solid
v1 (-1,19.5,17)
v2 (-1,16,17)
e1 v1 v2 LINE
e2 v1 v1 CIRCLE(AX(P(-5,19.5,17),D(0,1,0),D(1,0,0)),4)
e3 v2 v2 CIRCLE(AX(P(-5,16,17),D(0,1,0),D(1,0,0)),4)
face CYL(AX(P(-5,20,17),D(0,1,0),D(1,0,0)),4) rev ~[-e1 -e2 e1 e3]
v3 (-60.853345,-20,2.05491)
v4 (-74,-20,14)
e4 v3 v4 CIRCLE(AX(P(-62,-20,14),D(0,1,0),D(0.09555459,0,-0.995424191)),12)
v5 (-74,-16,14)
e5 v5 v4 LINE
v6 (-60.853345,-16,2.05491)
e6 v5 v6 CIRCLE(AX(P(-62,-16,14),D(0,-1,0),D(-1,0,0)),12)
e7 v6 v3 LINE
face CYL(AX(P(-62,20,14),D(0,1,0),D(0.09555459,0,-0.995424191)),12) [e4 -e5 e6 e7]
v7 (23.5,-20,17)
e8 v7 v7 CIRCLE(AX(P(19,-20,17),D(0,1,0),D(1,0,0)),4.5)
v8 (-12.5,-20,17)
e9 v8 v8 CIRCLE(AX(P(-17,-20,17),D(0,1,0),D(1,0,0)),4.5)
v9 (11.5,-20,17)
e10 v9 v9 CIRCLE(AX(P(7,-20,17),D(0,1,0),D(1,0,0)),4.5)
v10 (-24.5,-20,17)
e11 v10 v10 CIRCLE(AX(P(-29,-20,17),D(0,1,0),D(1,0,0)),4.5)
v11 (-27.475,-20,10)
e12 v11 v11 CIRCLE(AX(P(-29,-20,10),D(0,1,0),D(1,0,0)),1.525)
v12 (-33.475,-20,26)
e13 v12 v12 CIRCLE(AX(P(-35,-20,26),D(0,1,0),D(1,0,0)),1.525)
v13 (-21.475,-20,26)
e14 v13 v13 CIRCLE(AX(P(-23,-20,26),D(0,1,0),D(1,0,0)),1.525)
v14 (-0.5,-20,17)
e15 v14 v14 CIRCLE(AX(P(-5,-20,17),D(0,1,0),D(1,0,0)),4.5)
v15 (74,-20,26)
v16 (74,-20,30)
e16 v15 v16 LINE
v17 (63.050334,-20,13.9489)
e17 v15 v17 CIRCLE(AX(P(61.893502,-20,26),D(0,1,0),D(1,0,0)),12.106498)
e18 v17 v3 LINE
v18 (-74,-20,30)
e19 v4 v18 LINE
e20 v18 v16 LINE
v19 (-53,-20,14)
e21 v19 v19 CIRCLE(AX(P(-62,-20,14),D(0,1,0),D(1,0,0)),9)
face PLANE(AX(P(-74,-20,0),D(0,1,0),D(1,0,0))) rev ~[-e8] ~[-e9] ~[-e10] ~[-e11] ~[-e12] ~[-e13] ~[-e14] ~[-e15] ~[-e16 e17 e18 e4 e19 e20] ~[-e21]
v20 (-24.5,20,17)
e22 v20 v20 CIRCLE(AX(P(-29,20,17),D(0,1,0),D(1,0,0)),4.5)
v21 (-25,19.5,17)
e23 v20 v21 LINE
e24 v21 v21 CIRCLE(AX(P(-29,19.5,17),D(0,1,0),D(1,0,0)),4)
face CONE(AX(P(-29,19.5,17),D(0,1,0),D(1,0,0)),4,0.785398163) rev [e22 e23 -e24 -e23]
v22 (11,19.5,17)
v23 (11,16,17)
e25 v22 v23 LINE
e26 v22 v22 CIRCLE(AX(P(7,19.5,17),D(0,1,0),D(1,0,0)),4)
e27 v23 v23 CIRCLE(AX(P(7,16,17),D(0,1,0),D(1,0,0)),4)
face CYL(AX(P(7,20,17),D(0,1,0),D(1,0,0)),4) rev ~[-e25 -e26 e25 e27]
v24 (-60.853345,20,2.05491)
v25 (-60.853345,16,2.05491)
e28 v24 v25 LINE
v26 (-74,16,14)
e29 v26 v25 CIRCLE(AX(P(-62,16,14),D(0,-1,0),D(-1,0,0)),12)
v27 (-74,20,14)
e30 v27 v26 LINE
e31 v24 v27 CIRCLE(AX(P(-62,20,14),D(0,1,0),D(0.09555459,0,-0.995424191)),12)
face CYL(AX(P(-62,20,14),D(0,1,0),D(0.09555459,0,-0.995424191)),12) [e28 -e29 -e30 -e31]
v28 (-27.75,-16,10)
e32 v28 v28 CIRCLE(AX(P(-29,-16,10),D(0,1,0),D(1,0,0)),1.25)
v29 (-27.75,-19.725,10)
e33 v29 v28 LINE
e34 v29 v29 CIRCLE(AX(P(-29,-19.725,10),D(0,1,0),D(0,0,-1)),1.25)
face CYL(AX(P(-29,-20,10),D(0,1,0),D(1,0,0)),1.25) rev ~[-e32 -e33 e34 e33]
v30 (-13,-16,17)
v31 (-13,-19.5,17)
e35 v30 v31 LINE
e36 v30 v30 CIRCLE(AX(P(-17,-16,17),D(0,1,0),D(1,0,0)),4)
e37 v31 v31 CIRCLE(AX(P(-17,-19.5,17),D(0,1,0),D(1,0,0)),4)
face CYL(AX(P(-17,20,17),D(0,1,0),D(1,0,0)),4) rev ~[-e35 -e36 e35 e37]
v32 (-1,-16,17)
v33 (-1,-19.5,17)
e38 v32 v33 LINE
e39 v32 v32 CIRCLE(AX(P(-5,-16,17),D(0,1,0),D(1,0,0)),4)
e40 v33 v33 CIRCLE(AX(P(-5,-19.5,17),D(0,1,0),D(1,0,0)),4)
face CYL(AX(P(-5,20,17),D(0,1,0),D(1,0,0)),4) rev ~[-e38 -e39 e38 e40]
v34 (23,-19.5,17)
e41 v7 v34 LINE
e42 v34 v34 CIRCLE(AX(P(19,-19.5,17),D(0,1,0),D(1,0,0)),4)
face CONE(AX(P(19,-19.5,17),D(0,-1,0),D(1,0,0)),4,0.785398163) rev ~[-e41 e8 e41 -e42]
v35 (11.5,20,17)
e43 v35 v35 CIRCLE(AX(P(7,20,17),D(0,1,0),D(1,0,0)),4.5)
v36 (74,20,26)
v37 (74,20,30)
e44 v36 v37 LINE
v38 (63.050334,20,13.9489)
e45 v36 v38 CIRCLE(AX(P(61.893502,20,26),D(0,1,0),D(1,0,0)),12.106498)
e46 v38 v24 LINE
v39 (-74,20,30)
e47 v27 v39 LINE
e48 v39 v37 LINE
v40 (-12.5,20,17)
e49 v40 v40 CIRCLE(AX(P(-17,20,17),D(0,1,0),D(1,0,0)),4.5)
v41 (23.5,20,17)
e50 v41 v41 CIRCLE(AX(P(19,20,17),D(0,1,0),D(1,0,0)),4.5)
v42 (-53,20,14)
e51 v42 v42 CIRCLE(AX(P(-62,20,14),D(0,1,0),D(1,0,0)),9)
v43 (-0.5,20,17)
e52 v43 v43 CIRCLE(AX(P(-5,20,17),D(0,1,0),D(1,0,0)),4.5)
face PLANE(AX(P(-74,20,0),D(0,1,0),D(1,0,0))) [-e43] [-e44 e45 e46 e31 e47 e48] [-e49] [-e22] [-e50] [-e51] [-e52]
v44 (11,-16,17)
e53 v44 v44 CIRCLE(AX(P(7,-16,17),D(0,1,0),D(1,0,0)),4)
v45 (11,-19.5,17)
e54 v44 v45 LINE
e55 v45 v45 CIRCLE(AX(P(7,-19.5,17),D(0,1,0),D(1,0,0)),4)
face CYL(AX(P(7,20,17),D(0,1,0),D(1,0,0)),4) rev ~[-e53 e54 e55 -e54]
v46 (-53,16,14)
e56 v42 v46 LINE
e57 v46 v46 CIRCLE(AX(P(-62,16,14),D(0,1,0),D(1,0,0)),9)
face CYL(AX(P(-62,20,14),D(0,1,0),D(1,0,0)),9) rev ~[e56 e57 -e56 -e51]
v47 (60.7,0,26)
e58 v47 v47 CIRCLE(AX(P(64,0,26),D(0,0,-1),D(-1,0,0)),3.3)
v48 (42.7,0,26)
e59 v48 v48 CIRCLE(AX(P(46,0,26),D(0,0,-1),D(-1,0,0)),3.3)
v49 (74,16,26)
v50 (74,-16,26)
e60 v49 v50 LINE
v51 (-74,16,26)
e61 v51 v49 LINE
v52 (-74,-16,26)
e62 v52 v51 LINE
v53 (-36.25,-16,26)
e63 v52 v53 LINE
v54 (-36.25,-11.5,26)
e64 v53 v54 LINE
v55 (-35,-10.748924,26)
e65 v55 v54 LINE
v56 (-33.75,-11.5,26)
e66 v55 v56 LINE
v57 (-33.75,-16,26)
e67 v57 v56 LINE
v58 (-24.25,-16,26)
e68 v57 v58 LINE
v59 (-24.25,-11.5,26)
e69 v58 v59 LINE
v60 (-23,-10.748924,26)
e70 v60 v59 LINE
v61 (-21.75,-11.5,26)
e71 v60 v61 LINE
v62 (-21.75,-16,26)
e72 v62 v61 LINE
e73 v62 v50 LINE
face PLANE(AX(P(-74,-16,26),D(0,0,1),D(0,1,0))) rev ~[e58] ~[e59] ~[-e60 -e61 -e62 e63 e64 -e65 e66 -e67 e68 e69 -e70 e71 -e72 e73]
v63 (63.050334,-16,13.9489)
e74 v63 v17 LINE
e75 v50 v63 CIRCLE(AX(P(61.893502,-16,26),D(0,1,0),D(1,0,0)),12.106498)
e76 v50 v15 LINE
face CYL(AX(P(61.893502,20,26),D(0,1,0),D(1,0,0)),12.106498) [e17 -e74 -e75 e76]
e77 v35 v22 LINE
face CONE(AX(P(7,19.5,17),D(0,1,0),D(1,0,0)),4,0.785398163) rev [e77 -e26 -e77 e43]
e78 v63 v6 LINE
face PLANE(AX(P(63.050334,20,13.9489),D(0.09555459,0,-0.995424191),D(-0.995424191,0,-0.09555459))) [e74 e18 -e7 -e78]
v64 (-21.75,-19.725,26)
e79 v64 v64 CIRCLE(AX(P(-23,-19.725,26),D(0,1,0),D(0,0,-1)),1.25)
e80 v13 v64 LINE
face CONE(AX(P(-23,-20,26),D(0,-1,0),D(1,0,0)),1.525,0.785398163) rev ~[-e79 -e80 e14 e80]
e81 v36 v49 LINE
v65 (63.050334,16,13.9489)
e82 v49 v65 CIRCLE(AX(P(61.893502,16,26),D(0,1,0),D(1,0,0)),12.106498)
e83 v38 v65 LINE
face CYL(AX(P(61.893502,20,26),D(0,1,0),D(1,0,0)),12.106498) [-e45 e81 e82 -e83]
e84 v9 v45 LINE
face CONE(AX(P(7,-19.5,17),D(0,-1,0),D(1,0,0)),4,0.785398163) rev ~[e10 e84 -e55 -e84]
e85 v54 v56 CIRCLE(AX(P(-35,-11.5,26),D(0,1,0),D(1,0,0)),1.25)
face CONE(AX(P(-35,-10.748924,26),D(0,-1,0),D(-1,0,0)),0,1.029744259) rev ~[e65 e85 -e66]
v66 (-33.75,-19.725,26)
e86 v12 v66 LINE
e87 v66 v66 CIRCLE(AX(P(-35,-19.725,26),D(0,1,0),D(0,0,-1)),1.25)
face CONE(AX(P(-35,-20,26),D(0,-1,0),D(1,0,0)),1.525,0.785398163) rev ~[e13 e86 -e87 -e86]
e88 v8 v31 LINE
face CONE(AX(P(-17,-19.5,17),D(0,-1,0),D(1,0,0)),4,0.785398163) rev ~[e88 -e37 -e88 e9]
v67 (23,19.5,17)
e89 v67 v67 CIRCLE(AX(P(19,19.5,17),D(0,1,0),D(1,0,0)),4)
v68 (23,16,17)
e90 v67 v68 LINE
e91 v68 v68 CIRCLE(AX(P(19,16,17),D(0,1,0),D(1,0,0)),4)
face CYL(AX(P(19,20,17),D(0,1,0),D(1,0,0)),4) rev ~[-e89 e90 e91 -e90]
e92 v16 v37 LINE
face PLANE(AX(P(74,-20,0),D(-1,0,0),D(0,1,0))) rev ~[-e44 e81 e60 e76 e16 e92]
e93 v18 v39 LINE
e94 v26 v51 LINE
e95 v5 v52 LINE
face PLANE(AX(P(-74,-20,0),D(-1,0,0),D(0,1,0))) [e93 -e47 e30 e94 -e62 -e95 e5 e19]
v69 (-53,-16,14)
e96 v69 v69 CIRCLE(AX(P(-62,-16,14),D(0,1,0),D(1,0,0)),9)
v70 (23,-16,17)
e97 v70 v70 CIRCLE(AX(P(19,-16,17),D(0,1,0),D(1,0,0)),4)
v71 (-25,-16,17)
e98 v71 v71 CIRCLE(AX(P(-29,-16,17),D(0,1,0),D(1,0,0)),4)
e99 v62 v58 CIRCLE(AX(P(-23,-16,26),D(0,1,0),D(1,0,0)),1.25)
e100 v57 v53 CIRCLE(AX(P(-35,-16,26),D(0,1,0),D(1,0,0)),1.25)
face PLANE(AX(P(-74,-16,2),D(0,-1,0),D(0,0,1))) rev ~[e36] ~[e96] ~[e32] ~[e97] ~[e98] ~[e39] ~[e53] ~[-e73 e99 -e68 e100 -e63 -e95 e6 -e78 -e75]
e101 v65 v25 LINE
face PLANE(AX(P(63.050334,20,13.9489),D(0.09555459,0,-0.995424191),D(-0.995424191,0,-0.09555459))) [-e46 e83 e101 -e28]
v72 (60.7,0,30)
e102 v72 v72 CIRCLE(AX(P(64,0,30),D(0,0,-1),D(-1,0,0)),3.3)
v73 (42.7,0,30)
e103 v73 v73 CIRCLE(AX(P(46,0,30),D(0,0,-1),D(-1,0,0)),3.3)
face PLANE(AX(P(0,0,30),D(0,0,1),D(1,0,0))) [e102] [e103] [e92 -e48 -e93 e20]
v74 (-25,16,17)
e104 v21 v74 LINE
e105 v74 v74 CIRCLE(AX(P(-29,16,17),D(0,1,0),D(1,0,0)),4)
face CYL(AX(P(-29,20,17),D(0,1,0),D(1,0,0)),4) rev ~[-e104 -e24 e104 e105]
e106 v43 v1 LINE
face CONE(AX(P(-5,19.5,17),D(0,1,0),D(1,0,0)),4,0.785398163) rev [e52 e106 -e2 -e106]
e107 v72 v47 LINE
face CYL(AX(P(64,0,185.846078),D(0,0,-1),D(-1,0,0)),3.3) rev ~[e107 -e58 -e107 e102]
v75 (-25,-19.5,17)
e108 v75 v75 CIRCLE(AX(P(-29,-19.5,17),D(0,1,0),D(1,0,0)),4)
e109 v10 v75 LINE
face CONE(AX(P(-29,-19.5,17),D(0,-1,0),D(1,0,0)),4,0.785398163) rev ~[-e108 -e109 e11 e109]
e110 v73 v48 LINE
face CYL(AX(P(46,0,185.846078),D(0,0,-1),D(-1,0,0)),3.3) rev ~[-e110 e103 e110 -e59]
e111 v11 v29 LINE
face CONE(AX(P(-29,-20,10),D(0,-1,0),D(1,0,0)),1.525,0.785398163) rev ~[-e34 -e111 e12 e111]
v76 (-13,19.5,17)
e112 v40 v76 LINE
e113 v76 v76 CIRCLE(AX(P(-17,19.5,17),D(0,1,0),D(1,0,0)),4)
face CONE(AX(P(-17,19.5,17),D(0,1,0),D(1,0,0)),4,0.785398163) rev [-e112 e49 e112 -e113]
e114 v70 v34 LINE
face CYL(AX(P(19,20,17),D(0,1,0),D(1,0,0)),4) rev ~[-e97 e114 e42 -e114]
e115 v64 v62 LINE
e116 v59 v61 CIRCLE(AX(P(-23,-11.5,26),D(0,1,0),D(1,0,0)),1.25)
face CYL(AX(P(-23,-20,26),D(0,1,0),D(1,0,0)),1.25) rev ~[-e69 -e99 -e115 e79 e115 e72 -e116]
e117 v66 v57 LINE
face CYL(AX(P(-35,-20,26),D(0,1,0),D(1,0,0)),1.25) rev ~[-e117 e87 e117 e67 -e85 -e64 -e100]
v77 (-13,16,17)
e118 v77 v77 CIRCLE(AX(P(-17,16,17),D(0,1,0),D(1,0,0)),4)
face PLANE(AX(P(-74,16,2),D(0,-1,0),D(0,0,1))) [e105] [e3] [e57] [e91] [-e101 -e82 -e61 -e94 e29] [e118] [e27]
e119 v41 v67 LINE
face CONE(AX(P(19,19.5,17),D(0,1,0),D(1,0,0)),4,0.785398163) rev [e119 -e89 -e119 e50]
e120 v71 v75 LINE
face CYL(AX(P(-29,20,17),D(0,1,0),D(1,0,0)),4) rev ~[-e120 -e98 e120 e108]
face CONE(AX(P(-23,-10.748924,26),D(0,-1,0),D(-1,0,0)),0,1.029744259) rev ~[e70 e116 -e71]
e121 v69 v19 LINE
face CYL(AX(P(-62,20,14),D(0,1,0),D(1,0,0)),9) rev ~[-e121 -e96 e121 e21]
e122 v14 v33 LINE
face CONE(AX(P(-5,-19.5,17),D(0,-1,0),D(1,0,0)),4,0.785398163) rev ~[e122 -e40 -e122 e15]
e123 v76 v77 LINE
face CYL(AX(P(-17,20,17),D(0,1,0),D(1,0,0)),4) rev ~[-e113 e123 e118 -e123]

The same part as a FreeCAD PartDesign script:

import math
import FreeCAD as App
import Part
import Sketcher


def edges_at(feature, points):
    """Names of the edges that pass closest to the given points."""
    edges = feature.Shape.Edges
    near = lambda p: min(range(len(edges)), key=lambda i: edges[i].distToShape(Part.Vertex(*p))[0])
    return sorted({f"Edge{near(p) + 1}" for p in points})

doc = App.newDocument("Part")
body = doc.addObject("PartDesign::Body", "Body")

# Sketch on XY plane
sketch1 = body.newObject("Sketcher::SketchObject", "Sketch")
sketch1.AttachmentSupport = (doc.getObject("XY_Plane"), [""])
sketch1.MapMode = "FlatFace"
sketch1.addGeometry([
    Part.LineSegment(App.Vector(-74, 20, 0), App.Vector(-74, -20, 0)),
    Part.LineSegment(App.Vector(-74, -20, 0), App.Vector(74, -20, 0)),
    Part.LineSegment(App.Vector(74, -20, 0), App.Vector(74, 20, 0)),
    Part.LineSegment(App.Vector(74, 20, 0), App.Vector(-74, 20, 0)),
], False)
sketch1.addConstraint([
    Sketcher.Constraint("Coincident", 0, 2, 1, 1),
    Sketcher.Constraint("Coincident", 1, 2, 2, 1),
    Sketcher.Constraint("Coincident", 2, 2, 3, 1),
    Sketcher.Constraint("Coincident", 3, 2, 0, 1),
    Sketcher.Constraint("Vertical", 0),
    Sketcher.Constraint("Horizontal", 1),
    Sketcher.Constraint("Vertical", 2),
    Sketcher.Constraint("Horizontal", 3),
    Sketcher.Constraint("Symmetric", 0, 2, 2, 2, -1, 1),
    Sketcher.Constraint("DistanceX", 1, 1, 1, 2, 148.0),
    Sketcher.Constraint("DistanceY", 0, 2, 0, 1, 40.0),
])
pad1 = body.newObject("PartDesign::Pad", "Pad")
pad1.Profile = sketch1
pad1.Length = 30

# Sketch on XZ plane
sketch2 = body.newObject("Sketcher::SketchObject", "Sketch001")
sketch2.AttachmentSupport = (doc.getObject("XZ_Plane"), [""])
sketch2.MapMode = "FlatFace"
sketch2.AttachmentOffset = App.Placement(App.Vector(0, 0, -20), App.Rotation())
sketch2.addGeometry([
    Part.LineSegment(App.Vector(-90.6, -16.6, 0), App.Vector(-90.6, 46.6, 0)),  # 0
    Part.LineSegment(App.Vector(-90.6, 46.6, 0), App.Vector(90.6, 46.6, 0)),  # 1
    Part.LineSegment(App.Vector(90.6, 46.6, 0), App.Vector(90.6, -16.6, 0)),  # 2
    Part.LineSegment(App.Vector(90.6, -16.6, 0), App.Vector(-90.6, -16.6, 0)),  # 3
    Part.LineSegment(App.Vector(-74, 30, 0), App.Vector(-74, 14, 0)),  # 4
    Part.ArcOfCircle(Part.Circle(App.Vector(-62, 14, 0), App.Vector(0, 0, 1), 12), math.radians(180), math.radians(275)),  # 5
    Part.LineSegment(App.Vector(-60.9, 2.1, 0), App.Vector(63.1, 13.9, 0)),  # 6
    Part.ArcOfCircle(Part.Circle(App.Vector(61.9, 26, 0), App.Vector(0, 0, 1), 12.1), math.radians(-85), math.radians(0)),  # 7
    Part.LineSegment(App.Vector(74, 26, 0), App.Vector(74, 30, 0)),  # 8
    Part.LineSegment(App.Vector(74, 30, 0), App.Vector(-74, 30, 0)),  # 9
], False)
sketch2.addConstraint([
    Sketcher.Constraint("Coincident", 0, 2, 1, 1),
    Sketcher.Constraint("Coincident", 1, 2, 2, 1),
    Sketcher.Constraint("Coincident", 2, 2, 3, 1),
    Sketcher.Constraint("Coincident", 3, 2, 0, 1),
    Sketcher.Constraint("Tangent", 4, 2, 5, 1),
    Sketcher.Constraint("Tangent", 5, 2, 6, 1),
    Sketcher.Constraint("Tangent", 6, 2, 7, 1),
    Sketcher.Constraint("Tangent", 7, 2, 8, 1),
    Sketcher.Constraint("Coincident", 8, 2, 9, 1),
    Sketcher.Constraint("Coincident", 9, 2, 4, 1),
    Sketcher.Constraint("Vertical", 0),
    Sketcher.Constraint("Horizontal", 1),
    Sketcher.Constraint("Vertical", 2),
    Sketcher.Constraint("Horizontal", 3),
    Sketcher.Constraint("Vertical", 4),
    Sketcher.Constraint("Vertical", 8),
    Sketcher.Constraint("Horizontal", 9),
    Sketcher.Constraint("Radius", 5, 12.0),
    Sketcher.Constraint("DistanceX", 9, 2, 9, 1, 148.0),
    Sketcher.Constraint("DistanceY", 4, 2, 4, 1, 16.0),
    Sketcher.Constraint("DistanceY", 8, 1, 8, 2, 4.0),
    Sketcher.Constraint("DistanceX", 5, 3, -1, 1, 62.0),
    Sketcher.Constraint("DistanceY", -1, 1, 5, 3, 14.0),
    Sketcher.Constraint("DistanceX", 1, 1, 1, 2, 181.244),
    Sketcher.Constraint("DistanceY", 0, 1, 0, 2, 63.244),
    Sketcher.Constraint("DistanceX", 0, 2, -1, 1, 90.622),
    Sketcher.Constraint("DistanceY", -1, 1, 0, 2, 46.622),
    Sketcher.Constraint("Radius", 7, 12.106498),
])
pocket1 = body.newObject("PartDesign::Pocket", "Pocket")
pocket1.Profile = sketch2
pocket1.Type = "ThroughAll"
pocket1.Reversed = True

# Sketch on YZ plane
sketch3 = body.newObject("Sketcher::SketchObject", "Sketch002")
sketch3.AttachmentSupport = (doc.getObject("YZ_Plane"), [""])
sketch3.MapMode = "FlatFace"
sketch3.AttachmentOffset = App.Placement(App.Vector(0, 0, -74), App.Rotation())
sketch3.addGeometry([
    Part.LineSegment(App.Vector(16, 2, 0), App.Vector(-16, 2, 0)),
    Part.LineSegment(App.Vector(-16, 2, 0), App.Vector(-16, 26, 0)),
    Part.LineSegment(App.Vector(-16, 26, 0), App.Vector(16, 26, 0)),
    Part.LineSegment(App.Vector(16, 26, 0), App.Vector(16, 2, 0)),
], False)
sketch3.addConstraint([
    Sketcher.Constraint("Coincident", 0, 2, 1, 1),
    Sketcher.Constraint("Coincident", 1, 2, 2, 1),
    Sketcher.Constraint("Coincident", 2, 2, 3, 1),
    Sketcher.Constraint("Coincident", 3, 2, 0, 1),
    Sketcher.Constraint("Horizontal", 0),
    Sketcher.Constraint("Vertical", 1),
    Sketcher.Constraint("Horizontal", 2),
    Sketcher.Constraint("Vertical", 3),
    Sketcher.Constraint("DistanceX", 0, 2, 0, 1, 32.0),
    Sketcher.Constraint("DistanceY", 1, 1, 1, 2, 24.0),
    Sketcher.Constraint("DistanceX", 0, 2, -1, 1, 16.0),
    Sketcher.Constraint("DistanceY", -1, 1, 0, 2, 2.0),
])
pocket2 = body.newObject("PartDesign::Pocket", "Pocket001")
pocket2.Profile = sketch3
pocket2.Type = "ThroughAll"
pocket2.Reversed = True

# Sketch on XZ plane
sketch4 = body.newObject("Sketcher::SketchObject", "Sketch003")
sketch4.AttachmentSupport = (doc.getObject("XZ_Plane"), [""])
sketch4.MapMode = "FlatFace"
sketch4.AttachmentOffset = App.Placement(App.Vector(0, 0, -20), App.Rotation())
sketch4.addGeometry([
    Part.Circle(App.Vector(-62, 14, 0), App.Vector(0, 0, 1), 9),  # 0
    Part.Circle(App.Vector(-29, 17, 0), App.Vector(0, 0, 1), 4),  # 1
    Part.Circle(App.Vector(-17, 17, 0), App.Vector(0, 0, 1), 4),  # 2
    Part.Circle(App.Vector(-5, 17, 0), App.Vector(0, 0, 1), 4),  # 3
    Part.Circle(App.Vector(7, 17, 0), App.Vector(0, 0, 1), 4),  # 4
    Part.Circle(App.Vector(19, 17, 0), App.Vector(0, 0, 1), 4),  # 5
], False)
sketch4.addConstraint([
    Sketcher.Constraint("Equal", 1, 2),
    Sketcher.Constraint("Equal", 2, 3),
    Sketcher.Constraint("Equal", 3, 4),
    Sketcher.Constraint("Equal", 4, 5),
    Sketcher.Constraint("Horizontal", 1, 3, 2, 3),
    Sketcher.Constraint("Horizontal", 2, 3, 3, 3),
    Sketcher.Constraint("Horizontal", 3, 3, 4, 3),
    Sketcher.Constraint("Horizontal", 4, 3, 5, 3),
    Sketcher.Constraint("Diameter", 0, 18.0),
    Sketcher.Constraint("Diameter", 1, 8.0),
    Sketcher.Constraint("DistanceX", 0, 3, -1, 1, 62.0),
    Sketcher.Constraint("DistanceY", -1, 1, 0, 3, 14.0),
    Sketcher.Constraint("DistanceX", 1, 3, -1, 1, 29.0),
    Sketcher.Constraint("DistanceY", -1, 1, 1, 3, 17.0),
    Sketcher.Constraint("DistanceX", 2, 3, -1, 1, 17.0),
    Sketcher.Constraint("DistanceX", 3, 3, -1, 1, 5.0),
    Sketcher.Constraint("DistanceX", -1, 1, 4, 3, 7.0),
    Sketcher.Constraint("DistanceX", -1, 1, 5, 3, 19.0),
])
pocket3 = body.newObject("PartDesign::Pocket", "Pocket002")
pocket3.Profile = sketch4
pocket3.Type = "ThroughAll"
pocket3.Reversed = True
doc.recompute()

chamfer = body.newObject("PartDesign::Chamfer", "Chamfer")
chamfer.Base = (pocket3, edges_at(pocket3, [
    (3, 20, 17),
    (15, -20, 17),
    (15, 20, 17),
    (-33, -20, 17),
    (-33, 20, 17),
    (-21, -20, 17),
    (-21, 20, 17),
    (-9, -20, 17),
    (-9, 20, 17),
    (3, -20, 17),
]))
chamfer.Size = 0.5

# Sketch on XZ plane
sketch5 = body.newObject("Sketcher::SketchObject", "Sketch004")
sketch5.AttachmentSupport = (doc.getObject("XZ_Plane"), [""])
sketch5.MapMode = "FlatFace"
sketch5.AttachmentOffset = App.Placement(App.Vector(0, 0, 20), App.Rotation())
sketch5.addGeometry([
    Part.Circle(App.Vector(-29, 10, 0), App.Vector(0, 0, 1), 1.2),
    Part.Circle(App.Vector(-23, 26, 0), App.Vector(0, 0, 1), 1.2),
    Part.Circle(App.Vector(-35, 26, 0), App.Vector(0, 0, 1), 1.2),
], False)
sketch5.addConstraint([
    Sketcher.Constraint("Equal", 0, 1),
    Sketcher.Constraint("Equal", 1, 2),
    Sketcher.Constraint("Horizontal", 1, 3, 2, 3),
    Sketcher.Constraint("Diameter", 0, 2.5),
    Sketcher.Constraint("DistanceX", 0, 3, -1, 1, 29.0),
    Sketcher.Constraint("DistanceY", -1, 1, 0, 3, 10.0),
    Sketcher.Constraint("DistanceX", 1, 3, -1, 1, 23.0),
    Sketcher.Constraint("DistanceY", -1, 1, 1, 3, 26.0),
    Sketcher.Constraint("DistanceX", 2, 3, -1, 1, 35.0),
])
doc.recompute()
hole = body.newObject("PartDesign::Hole", "Hole")
hole.Profile = sketch5
hole.ThreadType = "None"
hole.Diameter = 2.5
hole.DepthType = "Dimension"
hole.Depth = 8.5
hole.DrillPoint = "Angled"
hole.DrillPointAngle = 118
hole.HoleCutType = "Countersink"
hole.HoleCutDiameter = 3.05
hole.HoleCutCountersinkAngle = 90

# Sketch on XY plane
sketch6 = body.newObject("Sketcher::SketchObject", "Sketch005")
sketch6.AttachmentSupport = (doc.getObject("XY_Plane"), [""])
sketch6.MapMode = "FlatFace"
sketch6.AttachmentOffset = App.Placement(App.Vector(0, 0, 30), App.Rotation())
sketch6.addGeometry([
    Part.Circle(App.Vector(46, 0, 0), App.Vector(0, 0, 1), 3.3),
    Part.Circle(App.Vector(64, 0, 0), App.Vector(0, 0, 1), 3.3),
], False)
sketch6.addConstraint([
    Sketcher.Constraint("Equal", 0, 1),
    Sketcher.Constraint("PointOnObject", 0, 3, -1),
    Sketcher.Constraint("PointOnObject", 1, 3, -1),
    Sketcher.Constraint("Diameter", 0, 6.6),
    Sketcher.Constraint("DistanceX", -1, 1, 0, 3, 46.0),
    Sketcher.Constraint("DistanceX", -1, 1, 1, 3, 64.0),
])
doc.recompute()
hole2 = body.newObject("PartDesign::Hole", "Hole001")
hole2.Profile = sketch6
hole2.ThreadType = "None"
hole2.Diameter = 6.6
hole2.DepthType = "ThroughAll"

doc.recompute()
